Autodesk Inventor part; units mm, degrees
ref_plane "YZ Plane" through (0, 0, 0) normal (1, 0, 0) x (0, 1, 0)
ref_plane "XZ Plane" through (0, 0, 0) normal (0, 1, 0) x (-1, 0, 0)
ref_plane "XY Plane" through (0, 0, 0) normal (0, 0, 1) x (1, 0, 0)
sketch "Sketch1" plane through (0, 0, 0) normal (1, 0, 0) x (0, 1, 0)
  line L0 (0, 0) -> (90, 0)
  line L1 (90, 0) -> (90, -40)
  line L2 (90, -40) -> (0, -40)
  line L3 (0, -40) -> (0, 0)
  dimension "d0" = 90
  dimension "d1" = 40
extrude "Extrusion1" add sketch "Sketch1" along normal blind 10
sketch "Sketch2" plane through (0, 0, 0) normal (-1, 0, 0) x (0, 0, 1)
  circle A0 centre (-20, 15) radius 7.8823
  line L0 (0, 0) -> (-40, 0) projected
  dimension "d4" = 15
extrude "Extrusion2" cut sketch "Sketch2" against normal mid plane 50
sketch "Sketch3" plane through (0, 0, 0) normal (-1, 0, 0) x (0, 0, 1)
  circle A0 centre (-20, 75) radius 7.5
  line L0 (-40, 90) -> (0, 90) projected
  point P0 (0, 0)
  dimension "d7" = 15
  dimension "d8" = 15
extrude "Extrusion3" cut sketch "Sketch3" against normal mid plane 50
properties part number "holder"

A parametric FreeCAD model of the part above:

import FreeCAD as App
import Part
import Sketcher


def add_polygon(sketch, points):
    """Adds a closed chain of lines whose ends are joined by coincident constraints."""
    first, n = sketch.GeometryCount, len(points)
    for a, b in zip(points, points[1:] + points[:1]):
        sketch.addGeometry(Part.LineSegment(App.Vector(*a, 0), App.Vector(*b, 0)), False)
    for i in range(n):
        sketch.addConstraint(Sketcher.Constraint("Coincident", first + i, 2, first + (i + 1) % n, 1))

doc = App.newDocument("Part")
body = doc.addObject("PartDesign::Body", "Body")

# Sketch on YZ plane
sketch1 = doc.addObject("Sketcher::SketchObject", "Sketch")
body.addObject(sketch1)
sketch1.AttachmentSupport = (doc.YZ_Plane, [""])
sketch1.MapMode = "FlatFace"
add_polygon(sketch1, [(90, 0), (0, 0), (0, -40), (90, -40)])  # lines 0-3
sketch1.addConstraint(Sketcher.Constraint("Horizontal", 0))
sketch1.addConstraint(Sketcher.Constraint("Vertical", 1))
sketch1.addConstraint(Sketcher.Constraint("Horizontal", 2))
sketch1.addConstraint(Sketcher.Constraint("Vertical", 3))
sketch1.addConstraint(Sketcher.Constraint("Coincident", 0, 2, -1, 1))
sketch1.addConstraint(Sketcher.Constraint("DistanceX", 0, 2, 0, 1, 90.0))
sketch1.addConstraint(Sketcher.Constraint("DistanceY", 1, 2, 1, 1, 40.0))
pad1 = doc.addObject("PartDesign::Pad", "Pad")
body.addObject(pad1)
pad1.Profile = sketch1
pad1.Length = 10

# Sketch on YZ plane
sketch2 = doc.addObject("Sketcher::SketchObject", "Sketch001")
body.addObject(sketch2)
sketch2.AttachmentSupport = (doc.YZ_Plane, [""])
sketch2.MapMode = "FlatFace"
sketch2.addGeometry(Part.Circle(App.Vector(15, -20, 0), App.Vector(0, 0, 1), 8), False)
sketch2.addConstraint(Sketcher.Constraint("DistanceX", -1, 1, 0, 3, 15.0))
sketch2.addConstraint(Sketcher.Constraint("DistanceY", 0, 3, -1, 1, 20.0))
sketch2.addConstraint(Sketcher.Constraint("Diameter", 0, 15.7646))
pocket1 = doc.addObject("PartDesign::Pocket", "Pocket")
body.addObject(pocket1)
pocket1.Profile = sketch2
pocket1.Length = 50
pocket1.Midplane = True

# Sketch on YZ plane
sketch3 = doc.addObject("Sketcher::SketchObject", "Sketch002")
body.addObject(sketch3)
sketch3.AttachmentSupport = (doc.YZ_Plane, [""])
sketch3.MapMode = "FlatFace"
sketch3.addGeometry(Part.Circle(App.Vector(75, -20, 0), App.Vector(0, 0, 1), 8), False)
sketch3.addConstraint(Sketcher.Constraint("Diameter", 0, 15.0))
sketch3.addConstraint(Sketcher.Constraint("DistanceX", -1, 1, 0, 3, 75.0))
sketch3.addConstraint(Sketcher.Constraint("DistanceY", 0, 3, -1, 1, 20.0))
pocket2 = doc.addObject("PartDesign::Pocket", "Pocket001")
body.addObject(pocket2)
pocket2.Profile = sketch3
pocket2.Length = 50
pocket2.Midplane = True

doc.recompute()
